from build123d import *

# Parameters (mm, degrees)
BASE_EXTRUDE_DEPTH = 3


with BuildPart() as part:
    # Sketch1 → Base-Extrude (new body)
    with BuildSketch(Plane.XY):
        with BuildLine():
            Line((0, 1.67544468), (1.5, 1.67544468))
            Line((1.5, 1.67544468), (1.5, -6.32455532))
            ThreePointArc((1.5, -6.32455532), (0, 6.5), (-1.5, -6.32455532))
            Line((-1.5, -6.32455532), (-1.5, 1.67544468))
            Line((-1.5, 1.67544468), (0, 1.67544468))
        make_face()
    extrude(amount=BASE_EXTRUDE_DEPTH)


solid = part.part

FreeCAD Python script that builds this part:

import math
import FreeCAD as App
import Part
import Sketcher

V = App.Vector
Q = App.Units.Quantity

doc = App.newDocument("Part")
body = doc.addObject("PartDesign::Body", "Body")

# Sketch on XY plane
sketch1 = body.newObject("Sketcher::SketchObject", "Sketch")
sketch1.AttachmentSupport = (doc.getObject("XY_Plane"), [""])
sketch1.MapMode = "FlatFace"
sketch1.addGeometry(Part.LineSegment(V(1.5, 1.675445, 0), V(1.5, -6.324555, 0)), False)
sketch1.addGeometry(Part.ArcOfCircle(Part.Circle(V(0, 0, 0), V(0, 0, 1), 6.5), math.radians(-76.657636), math.radians(256.657636)), False)
sketch1.addGeometry(Part.LineSegment(V(-1.5, -6.324555, 0), V(-1.5, 1.675445, 0)), False)
sketch1.addGeometry(Part.LineSegment(V(-1.5, 1.675445, 0), V(1.5, 1.675445, 0)), False)
sketch1.addConstraint(Sketcher.Constraint("Coincident", 0, 2, 1, 1))
sketch1.addConstraint(Sketcher.Constraint("Coincident", 1, 2, 2, 1))
sketch1.addConstraint(Sketcher.Constraint("Coincident", 2, 2, 3, 1))
sketch1.addConstraint(Sketcher.Constraint("Coincident", 3, 2, 0, 1))
sketch1.addConstraint(Sketcher.Constraint("Vertical", 0))
sketch1.addConstraint(Sketcher.Constraint("Vertical", 2))
sketch1.addConstraint(Sketcher.Constraint("Horizontal", 3))
sketch1.addConstraint(Sketcher.Constraint("Coincident", 1, 3, -1, 1))
sketch1.addConstraint(Sketcher.Constraint("Horizontal", 0, 2, 1, 2))
sketch1.addConstraint(Sketcher.Constraint("Radius", 1, Q("6.5 mm")))
sketch1.addConstraint(Sketcher.Constraint("DistanceX", 3, 1, 3, 2, Q("3 mm")))
sketch1.addConstraint(Sketcher.Constraint("DistanceY", 0, 2, 0, 1, Q("8 mm")))
pad1 = body.newObject("PartDesign::Pad", "Pad")
pad1.Profile = sketch1
pad1.Length = 3

doc.recompute()
